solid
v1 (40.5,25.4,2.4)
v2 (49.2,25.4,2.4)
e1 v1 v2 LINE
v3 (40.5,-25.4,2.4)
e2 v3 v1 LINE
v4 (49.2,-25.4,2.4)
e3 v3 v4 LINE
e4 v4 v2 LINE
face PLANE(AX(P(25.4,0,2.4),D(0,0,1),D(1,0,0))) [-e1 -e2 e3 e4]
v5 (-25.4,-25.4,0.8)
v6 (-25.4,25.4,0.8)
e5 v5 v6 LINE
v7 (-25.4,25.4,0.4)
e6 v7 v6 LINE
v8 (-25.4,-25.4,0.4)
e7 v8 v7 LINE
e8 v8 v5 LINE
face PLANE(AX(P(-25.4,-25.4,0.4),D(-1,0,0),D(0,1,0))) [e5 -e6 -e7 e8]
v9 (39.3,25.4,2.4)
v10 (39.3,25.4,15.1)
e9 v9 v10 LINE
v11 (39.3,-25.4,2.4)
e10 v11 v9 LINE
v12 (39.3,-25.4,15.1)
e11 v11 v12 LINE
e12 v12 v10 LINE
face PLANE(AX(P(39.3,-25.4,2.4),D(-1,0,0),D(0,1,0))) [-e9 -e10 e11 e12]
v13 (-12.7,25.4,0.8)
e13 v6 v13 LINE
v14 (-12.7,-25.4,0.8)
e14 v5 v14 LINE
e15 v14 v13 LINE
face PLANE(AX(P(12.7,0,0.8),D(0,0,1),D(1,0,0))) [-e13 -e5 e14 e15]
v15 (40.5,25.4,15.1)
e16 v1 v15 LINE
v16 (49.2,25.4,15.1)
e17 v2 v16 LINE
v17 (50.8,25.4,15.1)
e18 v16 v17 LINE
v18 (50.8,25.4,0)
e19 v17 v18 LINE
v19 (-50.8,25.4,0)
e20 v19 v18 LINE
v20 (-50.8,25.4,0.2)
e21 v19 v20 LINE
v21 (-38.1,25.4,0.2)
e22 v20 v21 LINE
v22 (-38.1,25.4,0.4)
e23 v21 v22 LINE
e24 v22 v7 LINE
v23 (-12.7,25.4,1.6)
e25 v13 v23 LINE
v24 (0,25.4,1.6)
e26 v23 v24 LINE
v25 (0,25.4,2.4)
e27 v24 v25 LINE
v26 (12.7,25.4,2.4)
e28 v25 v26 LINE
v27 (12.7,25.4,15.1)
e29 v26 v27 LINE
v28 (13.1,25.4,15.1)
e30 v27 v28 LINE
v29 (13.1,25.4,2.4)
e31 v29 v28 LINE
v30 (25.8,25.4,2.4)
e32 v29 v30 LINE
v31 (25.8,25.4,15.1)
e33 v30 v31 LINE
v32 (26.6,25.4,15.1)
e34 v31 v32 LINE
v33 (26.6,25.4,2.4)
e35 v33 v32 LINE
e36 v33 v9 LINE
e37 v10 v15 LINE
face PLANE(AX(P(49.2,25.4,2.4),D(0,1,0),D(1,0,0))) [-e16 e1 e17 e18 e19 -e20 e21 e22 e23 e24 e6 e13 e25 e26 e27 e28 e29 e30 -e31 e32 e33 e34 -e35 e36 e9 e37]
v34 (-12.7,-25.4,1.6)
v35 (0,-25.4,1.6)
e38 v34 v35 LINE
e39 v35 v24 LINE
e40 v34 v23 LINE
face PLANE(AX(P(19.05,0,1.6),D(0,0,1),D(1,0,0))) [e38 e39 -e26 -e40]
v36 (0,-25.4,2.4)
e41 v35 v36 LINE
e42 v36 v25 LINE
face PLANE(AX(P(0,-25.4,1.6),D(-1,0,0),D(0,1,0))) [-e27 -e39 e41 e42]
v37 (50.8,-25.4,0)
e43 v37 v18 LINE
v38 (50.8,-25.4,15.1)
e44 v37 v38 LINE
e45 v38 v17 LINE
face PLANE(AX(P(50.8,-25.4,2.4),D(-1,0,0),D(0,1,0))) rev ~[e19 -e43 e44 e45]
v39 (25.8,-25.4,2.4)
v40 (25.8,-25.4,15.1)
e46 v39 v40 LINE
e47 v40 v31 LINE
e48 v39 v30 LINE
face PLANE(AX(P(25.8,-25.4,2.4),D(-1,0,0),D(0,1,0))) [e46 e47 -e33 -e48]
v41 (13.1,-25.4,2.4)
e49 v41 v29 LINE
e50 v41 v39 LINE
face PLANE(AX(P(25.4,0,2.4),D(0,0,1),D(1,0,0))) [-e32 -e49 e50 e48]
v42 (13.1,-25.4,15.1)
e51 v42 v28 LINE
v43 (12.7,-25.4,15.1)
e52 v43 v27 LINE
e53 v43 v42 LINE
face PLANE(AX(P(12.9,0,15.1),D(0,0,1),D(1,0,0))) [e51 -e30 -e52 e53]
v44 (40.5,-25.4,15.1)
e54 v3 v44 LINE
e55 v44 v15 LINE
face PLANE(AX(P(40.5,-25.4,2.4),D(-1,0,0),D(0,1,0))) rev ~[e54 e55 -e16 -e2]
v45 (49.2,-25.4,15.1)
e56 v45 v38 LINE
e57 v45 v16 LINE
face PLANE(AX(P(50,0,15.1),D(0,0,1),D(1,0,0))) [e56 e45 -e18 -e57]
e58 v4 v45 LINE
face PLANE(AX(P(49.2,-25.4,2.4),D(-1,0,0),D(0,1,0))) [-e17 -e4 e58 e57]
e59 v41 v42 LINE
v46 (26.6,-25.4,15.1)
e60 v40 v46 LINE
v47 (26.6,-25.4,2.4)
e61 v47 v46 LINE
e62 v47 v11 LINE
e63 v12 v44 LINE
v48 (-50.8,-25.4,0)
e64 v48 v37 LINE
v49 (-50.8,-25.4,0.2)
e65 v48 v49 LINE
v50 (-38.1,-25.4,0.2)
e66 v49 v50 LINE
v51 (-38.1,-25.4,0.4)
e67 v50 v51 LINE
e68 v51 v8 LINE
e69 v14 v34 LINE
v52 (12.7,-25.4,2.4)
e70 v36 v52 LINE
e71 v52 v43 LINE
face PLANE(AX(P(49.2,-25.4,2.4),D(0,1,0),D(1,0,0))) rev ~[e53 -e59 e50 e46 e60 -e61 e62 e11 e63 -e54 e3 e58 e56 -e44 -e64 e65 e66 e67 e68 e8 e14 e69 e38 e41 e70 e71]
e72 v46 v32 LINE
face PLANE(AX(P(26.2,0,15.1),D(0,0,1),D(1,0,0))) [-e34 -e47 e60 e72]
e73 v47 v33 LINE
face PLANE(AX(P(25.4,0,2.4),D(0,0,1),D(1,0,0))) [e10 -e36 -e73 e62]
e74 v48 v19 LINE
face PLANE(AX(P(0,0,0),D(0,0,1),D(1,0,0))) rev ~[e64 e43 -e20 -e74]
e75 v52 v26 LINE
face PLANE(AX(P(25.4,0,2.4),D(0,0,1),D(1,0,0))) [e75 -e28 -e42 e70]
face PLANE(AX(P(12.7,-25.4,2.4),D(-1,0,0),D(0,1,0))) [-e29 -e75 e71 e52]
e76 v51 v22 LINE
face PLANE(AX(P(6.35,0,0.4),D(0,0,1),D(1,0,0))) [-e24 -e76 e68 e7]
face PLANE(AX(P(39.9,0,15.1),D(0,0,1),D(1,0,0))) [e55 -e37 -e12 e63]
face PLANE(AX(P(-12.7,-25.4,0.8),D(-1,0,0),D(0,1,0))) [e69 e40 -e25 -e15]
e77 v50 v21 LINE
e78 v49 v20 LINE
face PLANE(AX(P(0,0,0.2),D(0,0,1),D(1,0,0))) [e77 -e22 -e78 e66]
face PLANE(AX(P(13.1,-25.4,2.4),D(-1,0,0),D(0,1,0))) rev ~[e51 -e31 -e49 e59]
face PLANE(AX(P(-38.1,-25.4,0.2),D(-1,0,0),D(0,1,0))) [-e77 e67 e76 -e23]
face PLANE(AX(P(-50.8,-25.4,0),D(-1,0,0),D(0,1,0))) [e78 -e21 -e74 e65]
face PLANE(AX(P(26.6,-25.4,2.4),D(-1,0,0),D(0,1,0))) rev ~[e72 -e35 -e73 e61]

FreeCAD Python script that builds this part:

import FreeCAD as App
import Part
import Sketcher

V = App.Vector
Q = App.Units.Quantity

doc = App.newDocument("Part")
body = doc.addObject("PartDesign::Body", "Body")

# Sketch on XY plane
sketch1 = body.newObject("Sketcher::SketchObject", "Sketch")
sketch1.AttachmentSupport = (doc.getObject("XY_Plane"), [""])
sketch1.MapMode = "FlatFace"
sketch1.addGeometry([
    Part.LineSegment(V(-51, 25, 0), V(-51, -25, 0)),
    Part.LineSegment(V(-51, -25, 0), V(51, -25, 0)),
    Part.LineSegment(V(51, -25, 0), V(51, 25, 0)),
    Part.LineSegment(V(51, 25, 0), V(-51, 25, 0)),
], False)
sketch1.addConstraint([
    Sketcher.Constraint("Coincident", 0, 2, 1, 1),
    Sketcher.Constraint("Coincident", 1, 2, 2, 1),
    Sketcher.Constraint("Coincident", 2, 2, 3, 1),
    Sketcher.Constraint("Coincident", 3, 2, 0, 1),
    Sketcher.Constraint("Vertical", 0),
    Sketcher.Constraint("Horizontal", 1),
    Sketcher.Constraint("Vertical", 2),
    Sketcher.Constraint("Horizontal", 3),
    Sketcher.Constraint("Symmetric", 0, 2, 2, 2, -1, 1),
    Sketcher.Constraint("DistanceX", 1, 1, 1, 2, Q("4 in")),
    Sketcher.Constraint("DistanceY", 0, 2, 0, 1, Q("2 in")),
])
pad1 = body.newObject("PartDesign::Pad", "Pad")
pad1.Profile = sketch1
pad1.Length = 0.2

# Sketch on XY plane
sketch2 = body.newObject("Sketcher::SketchObject", "Sketch001")
sketch2.AttachmentSupport = (doc.getObject("XY_Plane"), [""])
sketch2.MapMode = "FlatFace"
sketch2.AttachmentOffset = App.Placement(V(0, 0, 0.2), App.Rotation())
sketch2.addGeometry([
    Part.LineSegment(V(-38, 25, 0), V(-38, -25, 0)),
    Part.LineSegment(V(-38, -25, 0), V(51, -25, 0)),
    Part.LineSegment(V(51, -25, 0), V(51, 25, 0)),
    Part.LineSegment(V(51, 25, 0), V(-38, 25, 0)),
], False)
sketch2.addConstraint([
    Sketcher.Constraint("Coincident", 0, 2, 1, 1),
    Sketcher.Constraint("Coincident", 1, 2, 2, 1),
    Sketcher.Constraint("Coincident", 2, 2, 3, 1),
    Sketcher.Constraint("Coincident", 3, 2, 0, 1),
    Sketcher.Constraint("Vertical", 0),
    Sketcher.Constraint("Horizontal", 1),
    Sketcher.Constraint("Vertical", 2),
    Sketcher.Constraint("Horizontal", 3),
    Sketcher.Constraint("DistanceY", 0, 2, 0, 1, Q("2 in")),
    Sketcher.Constraint("DistanceX", 1, 1, 1, 2, Q("3.5 in")),
    Sketcher.Constraint("DistanceY", 0, 2, -1, 1, Q("1 in")),
    Sketcher.Constraint("DistanceX", -1, 1, 1, 2, Q("2 in")),
])
pad2 = body.newObject("PartDesign::Pad", "Pad001")
pad2.Profile = sketch2
pad2.Length = 0.2

# Sketch on XY plane
sketch3 = body.newObject("Sketcher::SketchObject", "Sketch002")
sketch3.AttachmentSupport = (doc.getObject("XY_Plane"), [""])
sketch3.MapMode = "FlatFace"
sketch3.AttachmentOffset = App.Placement(V(0, 0, 0.4), App.Rotation())
sketch3.addGeometry([
    Part.LineSegment(V(-25, 25, 0), V(-25, -25, 0)),
    Part.LineSegment(V(-25, -25, 0), V(51, -25, 0)),
    Part.LineSegment(V(51, -25, 0), V(51, 25, 0)),
    Part.LineSegment(V(51, 25, 0), V(-25, 25, 0)),
], False)
sketch3.addConstraint([
    Sketcher.Constraint("Coincident", 0, 2, 1, 1),
    Sketcher.Constraint("Coincident", 1, 2, 2, 1),
    Sketcher.Constraint("Coincident", 2, 2, 3, 1),
    Sketcher.Constraint("Coincident", 3, 2, 0, 1),
    Sketcher.Constraint("Vertical", 0),
    Sketcher.Constraint("Horizontal", 1),
    Sketcher.Constraint("Vertical", 2),
    Sketcher.Constraint("Horizontal", 3),
    Sketcher.Constraint("DistanceX", 1, 1, 1, 2, Q("3 in")),
    Sketcher.Constraint("DistanceY", 0, 2, 0, 1, Q("2 in")),
    Sketcher.Constraint("DistanceX", 0, 2, -1, 1, Q("1 in")),
    Sketcher.Constraint("DistanceY", 0, 2, -1, 1, Q("1 in")),
])
pad3 = body.newObject("PartDesign::Pad", "Pad002")
pad3.Profile = sketch3
pad3.Length = 0.4

# Sketch on XY plane
sketch4 = body.newObject("Sketcher::SketchObject", "Sketch003")
sketch4.AttachmentSupport = (doc.getObject("XY_Plane"), [""])
sketch4.MapMode = "FlatFace"
sketch4.AttachmentOffset = App.Placement(V(0, 0, 0.8), App.Rotation())
sketch4.addGeometry([
    Part.LineSegment(V(-13, 25, 0), V(-13, -25, 0)),
    Part.LineSegment(V(-13, -25, 0), V(51, -25, 0)),
    Part.LineSegment(V(51, -25, 0), V(51, 25, 0)),
    Part.LineSegment(V(51, 25, 0), V(-13, 25, 0)),
], False)
sketch4.addConstraint([
    Sketcher.Constraint("Coincident", 0, 2, 1, 1),
    Sketcher.Constraint("Coincident", 1, 2, 2, 1),
    Sketcher.Constraint("Coincident", 2, 2, 3, 1),
    Sketcher.Constraint("Coincident", 3, 2, 0, 1),
    Sketcher.Constraint("Vertical", 0),
    Sketcher.Constraint("Horizontal", 1),
    Sketcher.Constraint("Vertical", 2),
    Sketcher.Constraint("Horizontal", 3),
    Sketcher.Constraint("DistanceY", 0, 2, 0, 1, Q("2 in")),
    Sketcher.Constraint("DistanceX", 1, 1, 1, 2, Q("2.5 in")),
    Sketcher.Constraint("DistanceY", 0, 2, -1, 1, Q("1 in")),
    Sketcher.Constraint("DistanceX", -1, 1, 1, 2, Q("2 in")),
])
pad4 = body.newObject("PartDesign::Pad", "Pad003")
pad4.Profile = sketch4
pad4.Length = 0.8

# Sketch on XY plane
sketch5 = body.newObject("Sketcher::SketchObject", "Sketch004")
sketch5.AttachmentSupport = (doc.getObject("XY_Plane"), [""])
sketch5.MapMode = "FlatFace"
sketch5.AttachmentOffset = App.Placement(V(0, 0, 1.6), App.Rotation())
sketch5.addGeometry([
    Part.LineSegment(V(0, 25, 0), V(0, -25, 0)),
    Part.LineSegment(V(0, -25, 0), V(51, -25, 0)),
    Part.LineSegment(V(51, -25, 0), V(51, 25, 0)),
    Part.LineSegment(V(51, 25, 0), V(0, 25, 0)),
], False)
sketch5.addConstraint([
    Sketcher.Constraint("Coincident", 0, 2, 1, 1),
    Sketcher.Constraint("Coincident", 1, 2, 2, 1),
    Sketcher.Constraint("Coincident", 2, 2, 3, 1),
    Sketcher.Constraint("Coincident", 3, 2, 0, 1),
    Sketcher.Constraint("Vertical", 0),
    Sketcher.Constraint("Horizontal", 1),
    Sketcher.Constraint("Vertical", 2),
    Sketcher.Constraint("Horizontal", 3),
    Sketcher.Constraint("Symmetric", 0, 2, 3, 2, -1, 1),
    Sketcher.Constraint("Equal", 3, 0),
    Sketcher.Constraint("DistanceX", 1, 1, 1, 2, Q("2 in")),
])
pad5 = body.newObject("PartDesign::Pad", "Pad004")
pad5.Profile = sketch5
pad5.Length = 0.8

# Sketch on XY plane
sketch6 = body.newObject("Sketcher::SketchObject", "Sketch005")
sketch6.AttachmentSupport = (doc.getObject("XY_Plane"), [""])
sketch6.MapMode = "FlatFace"
sketch6.AttachmentOffset = App.Placement(V(0, 0, 2.4), App.Rotation())
sketch6.addGeometry([
    Part.LineSegment(V(12.7, 25.4, 0), V(12.7, -25.4, 0)),  # 0
    Part.LineSegment(V(12.7, -25.4, 0), V(13.1, -25.4, 0)),  # 1
    Part.LineSegment(V(13.1, -25.4, 0), V(13.1, 25.4, 0)),  # 2
    Part.LineSegment(V(13.1, 25.4, 0), V(12.7, 25.4, 0)),  # 3
    Part.LineSegment(V(25.8, 25.4, 0), V(25.8, -25.4, 0)),  # 4
    Part.LineSegment(V(25.8, -25.4, 0), V(26.6, -25.4, 0)),  # 5
    Part.LineSegment(V(26.6, -25.4, 0), V(26.6, 25.4, 0)),  # 6
    Part.LineSegment(V(26.6, 25.4, 0), V(25.8, 25.4, 0)),  # 7
    Part.LineSegment(V(39.3, 25.4, 0), V(39.3, -25.4, 0)),  # 8
    Part.LineSegment(V(39.3, -25.4, 0), V(40.5, -25.4, 0)),  # 9
    Part.LineSegment(V(40.5, -25.4, 0), V(40.5, 25.4, 0)),  # 10
    Part.LineSegment(V(40.5, 25.4, 0), V(39.3, 25.4, 0)),  # 11
    Part.LineSegment(V(49.2, 25.4, 0), V(49.2, -25.4, 0)),  # 12
    Part.LineSegment(V(49.2, -25.4, 0), V(50.8, -25.4, 0)),  # 13
    Part.LineSegment(V(50.8, -25.4, 0), V(50.8, 25.4, 0)),  # 14
    Part.LineSegment(V(50.8, 25.4, 0), V(49.2, 25.4, 0)),  # 15
], False)
sketch6.addConstraint([
    Sketcher.Constraint("Coincident", 0, 2, 1, 1),
    Sketcher.Constraint("Coincident", 1, 2, 2, 1),
    Sketcher.Constraint("Coincident", 2, 2, 3, 1),
    Sketcher.Constraint("Coincident", 3, 2, 0, 1),
    Sketcher.Constraint("Coincident", 4, 2, 5, 1),
    Sketcher.Constraint("Coincident", 5, 2, 6, 1),
    Sketcher.Constraint("Coincident", 6, 2, 7, 1),
    Sketcher.Constraint("Coincident", 7, 2, 4, 1),
    Sketcher.Constraint("Coincident", 8, 2, 9, 1),
    Sketcher.Constraint("Coincident", 9, 2, 10, 1),
    Sketcher.Constraint("Coincident", 10, 2, 11, 1),
    Sketcher.Constraint("Coincident", 11, 2, 8, 1),
    Sketcher.Constraint("Coincident", 12, 2, 13, 1),
    Sketcher.Constraint("Coincident", 13, 2, 14, 1),
    Sketcher.Constraint("Coincident", 14, 2, 15, 1),
    Sketcher.Constraint("Coincident", 15, 2, 12, 1),
    Sketcher.Constraint("Vertical", 0),
    Sketcher.Constraint("Horizontal", 1),
    Sketcher.Constraint("Vertical", 2),
    Sketcher.Constraint("Horizontal", 3),
    Sketcher.Constraint("Vertical", 4),
    Sketcher.Constraint("Horizontal", 5),
    Sketcher.Constraint("Vertical", 6),
    Sketcher.Constraint("Horizontal", 7),
    Sketcher.Constraint("Vertical", 8),
    Sketcher.Constraint("Horizontal", 9),
    Sketcher.Constraint("Vertical", 10),
    Sketcher.Constraint("Horizontal", 11),
    Sketcher.Constraint("Vertical", 12),
    Sketcher.Constraint("Horizontal", 13),
    Sketcher.Constraint("Vertical", 14),
    Sketcher.Constraint("Horizontal", 15),
    Sketcher.Constraint("Horizontal", 1, 2, 4, 2),
    Sketcher.Constraint("Horizontal", 3, 2, 6, 2),
    Sketcher.Constraint("Horizontal", 5, 2, 8, 2),
    Sketcher.Constraint("Horizontal", 7, 2, 10, 2),
    Sketcher.Constraint("Horizontal", 9, 2, 12, 2),
    Sketcher.Constraint("Horizontal", 11, 2, 14, 2),
    Sketcher.Constraint("DistanceY", 0, 2, 0, 1, Q("2 in")),
    Sketcher.Constraint("DistanceY", 0, 2, -1, 1, Q("1 in")),
    Sketcher.Constraint("DistanceX", -1, 1, 13, 2, Q("2 in")),
    Sketcher.Constraint("DistanceX", -1, 1, 0, 2, Q("0.5 in")),
    Sketcher.Constraint("DistanceX", 1, 2, 4, 2, Q("0.5 in")),
    Sketcher.Constraint("DistanceX", 5, 2, 8, 2, Q("0.5 in")),
    Sketcher.Constraint("DistanceX", 1, 1, 1, 2, 0.4),
    Sketcher.Constraint("DistanceX", 5, 1, 5, 2, 0.8),
    Sketcher.Constraint("DistanceX", 9, 1, 9, 2, 1.2),
    Sketcher.Constraint("DistanceX", 13, 1, 13, 2, 1.6),
])
pad6 = body.newObject("PartDesign::Pad", "Pad005")
pad6.Profile = sketch6
pad6.Length = Q("0.5 in")

doc.recompute()
